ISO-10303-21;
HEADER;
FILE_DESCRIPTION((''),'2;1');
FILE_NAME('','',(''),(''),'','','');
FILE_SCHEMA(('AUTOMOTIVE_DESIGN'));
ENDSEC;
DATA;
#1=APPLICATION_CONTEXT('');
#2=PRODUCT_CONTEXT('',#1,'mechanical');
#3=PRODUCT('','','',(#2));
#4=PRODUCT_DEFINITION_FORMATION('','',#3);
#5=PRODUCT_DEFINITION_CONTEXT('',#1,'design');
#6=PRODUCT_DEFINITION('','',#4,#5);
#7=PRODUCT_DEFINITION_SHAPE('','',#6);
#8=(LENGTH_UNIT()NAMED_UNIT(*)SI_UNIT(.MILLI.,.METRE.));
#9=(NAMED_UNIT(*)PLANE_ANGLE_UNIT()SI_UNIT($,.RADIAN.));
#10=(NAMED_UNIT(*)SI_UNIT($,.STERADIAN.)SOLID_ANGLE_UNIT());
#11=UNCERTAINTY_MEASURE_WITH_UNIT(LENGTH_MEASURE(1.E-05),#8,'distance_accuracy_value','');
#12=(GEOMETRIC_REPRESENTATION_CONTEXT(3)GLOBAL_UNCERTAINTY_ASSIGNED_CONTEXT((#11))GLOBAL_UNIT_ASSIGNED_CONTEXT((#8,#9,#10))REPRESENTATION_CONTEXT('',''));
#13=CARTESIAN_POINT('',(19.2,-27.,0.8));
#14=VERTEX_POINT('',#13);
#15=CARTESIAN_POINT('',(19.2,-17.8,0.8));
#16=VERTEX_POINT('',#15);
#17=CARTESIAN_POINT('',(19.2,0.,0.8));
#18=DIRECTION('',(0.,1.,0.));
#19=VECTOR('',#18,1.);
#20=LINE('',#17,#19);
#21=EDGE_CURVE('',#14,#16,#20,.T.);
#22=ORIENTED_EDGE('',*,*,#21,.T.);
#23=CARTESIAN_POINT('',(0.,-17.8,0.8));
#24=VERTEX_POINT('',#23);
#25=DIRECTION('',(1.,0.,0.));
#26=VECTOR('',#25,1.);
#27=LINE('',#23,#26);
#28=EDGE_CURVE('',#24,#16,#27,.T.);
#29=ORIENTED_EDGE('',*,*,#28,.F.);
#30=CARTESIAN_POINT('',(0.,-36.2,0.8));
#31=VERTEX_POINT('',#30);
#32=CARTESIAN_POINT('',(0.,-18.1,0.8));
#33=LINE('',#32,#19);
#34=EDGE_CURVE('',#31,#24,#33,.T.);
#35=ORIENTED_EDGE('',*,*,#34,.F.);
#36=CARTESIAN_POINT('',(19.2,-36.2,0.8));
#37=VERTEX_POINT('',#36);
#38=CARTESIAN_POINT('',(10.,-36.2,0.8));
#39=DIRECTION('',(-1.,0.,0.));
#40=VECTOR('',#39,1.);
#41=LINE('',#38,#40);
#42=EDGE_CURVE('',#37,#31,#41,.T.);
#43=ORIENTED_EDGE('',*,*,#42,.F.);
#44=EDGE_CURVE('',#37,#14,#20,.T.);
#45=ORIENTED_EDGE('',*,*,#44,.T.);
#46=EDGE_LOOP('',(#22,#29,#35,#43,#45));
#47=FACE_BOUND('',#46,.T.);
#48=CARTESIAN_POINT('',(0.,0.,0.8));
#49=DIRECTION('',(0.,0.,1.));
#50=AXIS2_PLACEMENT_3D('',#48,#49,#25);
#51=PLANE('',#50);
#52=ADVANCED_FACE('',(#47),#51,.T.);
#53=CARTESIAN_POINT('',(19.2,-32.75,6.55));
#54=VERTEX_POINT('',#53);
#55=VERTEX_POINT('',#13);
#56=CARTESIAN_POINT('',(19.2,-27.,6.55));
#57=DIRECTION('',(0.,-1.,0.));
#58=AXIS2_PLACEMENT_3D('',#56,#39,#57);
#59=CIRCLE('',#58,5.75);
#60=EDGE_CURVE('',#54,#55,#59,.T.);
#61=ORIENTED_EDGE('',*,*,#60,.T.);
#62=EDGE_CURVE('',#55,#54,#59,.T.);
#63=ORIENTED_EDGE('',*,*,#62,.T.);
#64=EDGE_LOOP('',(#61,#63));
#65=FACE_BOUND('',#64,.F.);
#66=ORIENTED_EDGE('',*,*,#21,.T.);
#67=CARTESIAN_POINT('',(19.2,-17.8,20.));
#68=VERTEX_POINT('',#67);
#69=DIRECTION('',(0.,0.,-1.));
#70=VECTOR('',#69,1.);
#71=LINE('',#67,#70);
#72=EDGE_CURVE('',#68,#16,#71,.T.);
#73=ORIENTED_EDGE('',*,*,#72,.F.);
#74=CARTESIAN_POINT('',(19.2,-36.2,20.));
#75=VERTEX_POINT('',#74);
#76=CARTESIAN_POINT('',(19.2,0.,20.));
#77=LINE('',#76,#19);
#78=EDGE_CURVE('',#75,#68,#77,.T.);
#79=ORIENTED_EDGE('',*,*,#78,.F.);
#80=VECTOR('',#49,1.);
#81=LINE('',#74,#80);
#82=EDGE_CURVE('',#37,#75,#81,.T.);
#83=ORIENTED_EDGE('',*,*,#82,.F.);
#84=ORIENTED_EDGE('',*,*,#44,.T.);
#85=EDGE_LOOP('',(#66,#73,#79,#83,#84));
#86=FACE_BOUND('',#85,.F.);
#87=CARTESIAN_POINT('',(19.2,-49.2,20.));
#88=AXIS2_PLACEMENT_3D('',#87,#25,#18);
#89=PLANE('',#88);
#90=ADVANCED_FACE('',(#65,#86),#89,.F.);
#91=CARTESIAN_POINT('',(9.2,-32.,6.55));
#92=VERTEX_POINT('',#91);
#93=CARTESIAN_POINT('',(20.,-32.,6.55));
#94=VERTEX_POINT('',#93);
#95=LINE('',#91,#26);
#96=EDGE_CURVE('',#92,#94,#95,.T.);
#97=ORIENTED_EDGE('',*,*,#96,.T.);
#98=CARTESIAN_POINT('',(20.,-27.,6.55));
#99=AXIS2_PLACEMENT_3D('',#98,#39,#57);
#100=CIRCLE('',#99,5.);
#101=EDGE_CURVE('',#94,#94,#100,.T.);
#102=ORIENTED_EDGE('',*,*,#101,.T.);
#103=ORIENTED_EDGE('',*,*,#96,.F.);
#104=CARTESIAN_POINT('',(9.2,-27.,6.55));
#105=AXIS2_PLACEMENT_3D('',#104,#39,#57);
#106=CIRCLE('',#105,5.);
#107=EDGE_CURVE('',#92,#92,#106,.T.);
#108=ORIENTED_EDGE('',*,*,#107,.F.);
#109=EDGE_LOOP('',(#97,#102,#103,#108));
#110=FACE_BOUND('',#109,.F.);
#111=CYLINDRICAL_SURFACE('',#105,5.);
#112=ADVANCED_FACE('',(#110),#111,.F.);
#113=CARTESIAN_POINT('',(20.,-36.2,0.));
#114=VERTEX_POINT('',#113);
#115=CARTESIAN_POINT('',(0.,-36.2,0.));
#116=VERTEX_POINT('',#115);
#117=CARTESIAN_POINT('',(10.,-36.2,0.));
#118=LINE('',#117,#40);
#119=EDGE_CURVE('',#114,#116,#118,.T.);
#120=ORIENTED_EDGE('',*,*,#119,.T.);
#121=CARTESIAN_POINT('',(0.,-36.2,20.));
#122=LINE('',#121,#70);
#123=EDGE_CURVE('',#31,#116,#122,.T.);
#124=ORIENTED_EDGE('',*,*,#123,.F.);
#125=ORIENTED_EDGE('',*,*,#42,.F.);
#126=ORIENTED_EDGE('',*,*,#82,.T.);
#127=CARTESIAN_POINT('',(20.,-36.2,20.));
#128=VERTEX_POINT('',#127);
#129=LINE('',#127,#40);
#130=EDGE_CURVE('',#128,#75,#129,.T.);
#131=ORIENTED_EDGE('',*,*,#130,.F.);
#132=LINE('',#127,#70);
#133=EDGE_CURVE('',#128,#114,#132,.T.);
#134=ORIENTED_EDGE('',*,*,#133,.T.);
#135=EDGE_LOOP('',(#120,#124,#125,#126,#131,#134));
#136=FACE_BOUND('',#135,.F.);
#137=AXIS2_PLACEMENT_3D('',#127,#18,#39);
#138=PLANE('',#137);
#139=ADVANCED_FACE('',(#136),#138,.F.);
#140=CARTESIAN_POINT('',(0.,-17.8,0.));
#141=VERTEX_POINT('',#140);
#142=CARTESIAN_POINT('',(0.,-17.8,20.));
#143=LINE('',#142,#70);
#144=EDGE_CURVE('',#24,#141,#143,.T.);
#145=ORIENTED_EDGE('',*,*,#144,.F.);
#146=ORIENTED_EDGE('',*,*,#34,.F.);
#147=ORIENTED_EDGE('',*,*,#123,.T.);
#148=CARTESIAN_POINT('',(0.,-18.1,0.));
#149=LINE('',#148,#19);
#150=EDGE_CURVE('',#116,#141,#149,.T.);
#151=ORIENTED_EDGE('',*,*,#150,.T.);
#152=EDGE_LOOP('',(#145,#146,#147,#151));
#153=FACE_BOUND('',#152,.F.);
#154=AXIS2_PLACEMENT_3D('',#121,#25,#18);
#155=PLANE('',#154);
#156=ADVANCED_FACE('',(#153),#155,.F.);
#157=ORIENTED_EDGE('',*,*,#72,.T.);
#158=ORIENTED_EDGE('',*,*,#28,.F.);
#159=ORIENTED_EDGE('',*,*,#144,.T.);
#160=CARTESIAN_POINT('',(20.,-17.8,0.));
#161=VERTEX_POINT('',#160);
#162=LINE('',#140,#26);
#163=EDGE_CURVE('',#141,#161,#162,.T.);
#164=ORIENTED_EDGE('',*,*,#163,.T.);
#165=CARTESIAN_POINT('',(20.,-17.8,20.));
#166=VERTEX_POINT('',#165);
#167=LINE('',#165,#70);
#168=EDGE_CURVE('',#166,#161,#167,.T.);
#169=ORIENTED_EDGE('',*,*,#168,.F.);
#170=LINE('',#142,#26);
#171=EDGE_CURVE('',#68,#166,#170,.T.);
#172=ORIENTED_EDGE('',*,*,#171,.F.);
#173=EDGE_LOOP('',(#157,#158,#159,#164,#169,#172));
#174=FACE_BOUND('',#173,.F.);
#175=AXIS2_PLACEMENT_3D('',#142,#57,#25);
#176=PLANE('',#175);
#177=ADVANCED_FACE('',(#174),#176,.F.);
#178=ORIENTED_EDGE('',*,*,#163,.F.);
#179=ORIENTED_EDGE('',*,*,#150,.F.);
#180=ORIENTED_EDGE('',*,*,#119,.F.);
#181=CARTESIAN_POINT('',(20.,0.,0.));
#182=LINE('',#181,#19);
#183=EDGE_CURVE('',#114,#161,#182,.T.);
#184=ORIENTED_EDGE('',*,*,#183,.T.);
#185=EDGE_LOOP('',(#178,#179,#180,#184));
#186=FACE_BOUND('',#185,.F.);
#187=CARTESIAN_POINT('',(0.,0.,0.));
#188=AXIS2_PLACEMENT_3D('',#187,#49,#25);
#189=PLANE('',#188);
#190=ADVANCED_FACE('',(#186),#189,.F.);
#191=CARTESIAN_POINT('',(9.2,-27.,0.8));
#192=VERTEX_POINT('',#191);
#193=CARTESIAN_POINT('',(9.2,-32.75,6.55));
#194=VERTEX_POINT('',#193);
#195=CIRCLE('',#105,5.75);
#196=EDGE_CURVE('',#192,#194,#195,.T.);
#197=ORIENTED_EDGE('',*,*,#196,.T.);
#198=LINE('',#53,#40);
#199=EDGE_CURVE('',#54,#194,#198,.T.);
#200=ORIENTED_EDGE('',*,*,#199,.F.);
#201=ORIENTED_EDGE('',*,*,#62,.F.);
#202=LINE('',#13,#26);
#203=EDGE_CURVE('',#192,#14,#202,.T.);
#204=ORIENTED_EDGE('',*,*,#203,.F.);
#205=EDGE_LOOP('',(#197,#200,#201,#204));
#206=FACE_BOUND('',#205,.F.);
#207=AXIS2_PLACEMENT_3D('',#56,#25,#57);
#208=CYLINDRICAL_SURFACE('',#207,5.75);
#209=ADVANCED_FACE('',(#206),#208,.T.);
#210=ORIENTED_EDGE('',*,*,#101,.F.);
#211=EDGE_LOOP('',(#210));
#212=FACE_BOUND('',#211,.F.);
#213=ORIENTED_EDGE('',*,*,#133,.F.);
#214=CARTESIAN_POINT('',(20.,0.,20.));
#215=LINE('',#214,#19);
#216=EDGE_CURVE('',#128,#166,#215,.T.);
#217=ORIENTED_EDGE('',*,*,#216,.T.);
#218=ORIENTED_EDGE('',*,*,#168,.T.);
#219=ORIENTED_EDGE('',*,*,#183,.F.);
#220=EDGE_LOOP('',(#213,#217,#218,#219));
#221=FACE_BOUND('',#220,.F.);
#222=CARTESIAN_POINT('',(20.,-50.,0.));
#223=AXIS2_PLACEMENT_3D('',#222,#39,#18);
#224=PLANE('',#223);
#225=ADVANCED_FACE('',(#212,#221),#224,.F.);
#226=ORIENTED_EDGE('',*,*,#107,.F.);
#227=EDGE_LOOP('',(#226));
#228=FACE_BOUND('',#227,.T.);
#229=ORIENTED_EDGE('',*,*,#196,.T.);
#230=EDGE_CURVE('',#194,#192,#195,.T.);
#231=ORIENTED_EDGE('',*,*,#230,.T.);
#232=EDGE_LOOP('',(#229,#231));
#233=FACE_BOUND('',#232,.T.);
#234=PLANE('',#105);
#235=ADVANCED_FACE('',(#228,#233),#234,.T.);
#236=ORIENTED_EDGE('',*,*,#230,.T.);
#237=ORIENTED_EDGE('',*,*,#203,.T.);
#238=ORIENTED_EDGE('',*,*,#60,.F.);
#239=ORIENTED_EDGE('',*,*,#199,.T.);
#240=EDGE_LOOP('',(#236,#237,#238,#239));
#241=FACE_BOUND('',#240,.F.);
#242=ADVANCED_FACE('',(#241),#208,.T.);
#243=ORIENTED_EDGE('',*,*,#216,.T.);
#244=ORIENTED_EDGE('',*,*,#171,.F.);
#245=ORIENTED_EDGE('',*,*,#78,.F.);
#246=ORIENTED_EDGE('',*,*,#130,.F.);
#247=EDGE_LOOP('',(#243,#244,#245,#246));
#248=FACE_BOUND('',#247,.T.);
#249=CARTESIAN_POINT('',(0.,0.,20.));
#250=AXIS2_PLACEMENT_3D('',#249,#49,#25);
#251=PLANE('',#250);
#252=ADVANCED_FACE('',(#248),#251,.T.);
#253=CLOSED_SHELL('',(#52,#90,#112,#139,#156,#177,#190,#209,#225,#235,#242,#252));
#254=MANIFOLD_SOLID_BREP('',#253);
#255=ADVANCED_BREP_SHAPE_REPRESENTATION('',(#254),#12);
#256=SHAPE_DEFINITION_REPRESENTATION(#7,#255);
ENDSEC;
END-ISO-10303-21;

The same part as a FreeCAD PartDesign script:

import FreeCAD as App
import Part
import Sketcher
Q = App.Units.Quantity


def edges_at(feature, points):
    """Names of the edges that pass closest to the given points."""
    edges = feature.Shape.Edges
    near = lambda p: min(range(len(edges)), key=lambda i: edges[i].distToShape(Part.Vertex(*p))[0])
    return sorted({f"Edge{near(p) + 1}" for p in points})

doc = App.newDocument("Part")
body = doc.addObject("PartDesign::Body", "Body")

# Sketch on XY plane
sketch1 = body.newObject("Sketcher::SketchObject", "Sketch")
sketch1.AttachmentSupport = (doc.getObject("XY_Plane"), [""])
sketch1.MapMode = "FlatFace"
sketch1.addGeometry([
    Part.LineSegment(App.Vector(-20, 50, 0), App.Vector(-20, -50, 0)),
    Part.LineSegment(App.Vector(-20, -50, 0), App.Vector(20, -50, 0)),
    Part.LineSegment(App.Vector(20, -50, 0), App.Vector(20, 50, 0)),
    Part.LineSegment(App.Vector(20, 50, 0), App.Vector(-20, 50, 0)),
], False)
sketch1.addConstraint([
    Sketcher.Constraint("Coincident", 0, 2, 1, 1),
    Sketcher.Constraint("Coincident", 1, 2, 2, 1),
    Sketcher.Constraint("Coincident", 2, 2, 3, 1),
    Sketcher.Constraint("Coincident", 3, 2, 0, 1),
    Sketcher.Constraint("Vertical", 0),
    Sketcher.Constraint("Horizontal", 1),
    Sketcher.Constraint("Vertical", 2),
    Sketcher.Constraint("Horizontal", 3),
    Sketcher.Constraint("Symmetric", 0, 2, 2, 2, -1, 1),
    Sketcher.Constraint("DistanceX", 1, 1, 1, 2, Q("40 mm")),
    Sketcher.Constraint("DistanceY", 0, 2, 0, 1, Q("100 mm")),
])
pad1 = body.newObject("PartDesign::Pad", "Pad")
pad1.Profile = sketch1
pad1.Length = 20

# Sketch on XY plane
sketch2 = body.newObject("Sketcher::SketchObject", "Sketch001")
sketch2.AttachmentSupport = (doc.getObject("XY_Plane"), [""])
sketch2.MapMode = "FlatFace"
sketch2.AttachmentOffset = App.Placement(App.Vector(0, 0, 20), App.Rotation())
sketch2.addGeometry([
    Part.LineSegment(App.Vector(-19, 49, 0), App.Vector(-19, -49, 0)),
    Part.LineSegment(App.Vector(-19, -49, 0), App.Vector(19, -49, 0)),
    Part.LineSegment(App.Vector(19, -49, 0), App.Vector(19, 49, 0)),
    Part.LineSegment(App.Vector(19, 49, 0), App.Vector(-19, 49, 0)),
], False)
sketch2.addConstraint([
    Sketcher.Constraint("Coincident", 0, 2, 1, 1),
    Sketcher.Constraint("Coincident", 1, 2, 2, 1),
    Sketcher.Constraint("Coincident", 2, 2, 3, 1),
    Sketcher.Constraint("Coincident", 3, 2, 0, 1),
    Sketcher.Constraint("Vertical", 0),
    Sketcher.Constraint("Horizontal", 1),
    Sketcher.Constraint("Vertical", 2),
    Sketcher.Constraint("Horizontal", 3),
    Sketcher.Constraint("Symmetric", 0, 2, 2, 2, -1, 1),
    Sketcher.Constraint("DistanceX", 1, 1, 1, 2, Q("38.4 mm")),
    Sketcher.Constraint("DistanceY", 0, 2, 0, 1, Q("98.4 mm")),
])
pocket1 = body.newObject("PartDesign::Pocket", "Pocket")
pocket1.Profile = sketch2
pocket1.Length = 19.2

# Sketch on YZ plane
sketch3 = body.newObject("Sketcher::SketchObject", "Sketch002")
sketch3.AttachmentSupport = (doc.getObject("YZ_Plane"), [""])
sketch3.MapMode = "FlatFace"
sketch3.AttachmentOffset = App.Placement(App.Vector(0, 0, 19.2), App.Rotation())
sketch3.addGeometry(Part.Circle(App.Vector(-27, 7, 0), App.Vector(0, 0, 1), 6), False)
sketch3.addConstraint([
    Sketcher.Constraint("Diameter", 0, Q("11.5 mm")),
    Sketcher.Constraint("DistanceX", 0, 3, -1, 1, Q("27 mm")),
    Sketcher.Constraint("DistanceY", -1, 1, 0, 3, Q("6.55 mm")),
])
pad2 = body.newObject("PartDesign::Pad", "Pad001")
pad2.Profile = sketch3
pad2.Length = 10
pad2.Reversed = True

# Sketch on YZ plane
sketch4 = body.newObject("Sketcher::SketchObject", "Sketch003")
sketch4.AttachmentSupport = (doc.getObject("YZ_Plane"), [""])
sketch4.MapMode = "FlatFace"
sketch4.AttachmentOffset = App.Placement(App.Vector(0, 0, 9.2), App.Rotation())
sketch4.addGeometry(Part.Circle(App.Vector(-27, 7, 0), App.Vector(0, 0, 1), 5), False)
sketch4.addConstraint([
    Sketcher.Constraint("Diameter", 0, Q("10 mm")),
    Sketcher.Constraint("DistanceX", 0, 3, -1, 1, Q("27 mm")),
    Sketcher.Constraint("DistanceY", -1, 1, 0, 3, Q("6.55 mm")),
])
pocket2 = body.newObject("PartDesign::Pocket", "Pocket001")
pocket2.Profile = sketch4
pocket2.Length = 10.8
pocket2.Reversed = True
doc.recompute()

fillet = body.newObject("PartDesign::Fillet", "Fillet")
fillet.Base = (pocket2, edges_at(pocket2, [
    (0, 50, 0),
    (0, -50, 0),
    (0, -49.2, 0.8),
    (0, 49.2, 0.8),
]))
fillet.Radius = 5

# Sketch on XY plane
sketch5 = body.newObject("Sketcher::SketchObject", "Sketch004")
sketch5.AttachmentSupport = (doc.getObject("XY_Plane"), [""])
sketch5.MapMode = "FlatFace"
sketch5.AttachmentOffset = App.Placement(App.Vector(0, 0, 20), App.Rotation())
sketch5.addGeometry([
    Part.LineSegment(App.Vector(-20, 50, 0), App.Vector(-20, -50, 0)),  # 0
    Part.LineSegment(App.Vector(-20, -50, 0), App.Vector(20, -50, 0)),  # 1
    Part.LineSegment(App.Vector(20, -50, 0), App.Vector(20, -36, 0)),  # 2
    Part.LineSegment(App.Vector(20, -36, 0), App.Vector(0, -36, 0)),  # 3
    Part.LineSegment(App.Vector(0, -36, 0), App.Vector(0, -18, 0)),  # 4
    Part.LineSegment(App.Vector(0, -18, 0), App.Vector(20, -18, 0)),  # 5
    Part.LineSegment(App.Vector(20, -18, 0), App.Vector(20, 50, 0)),  # 6
    Part.LineSegment(App.Vector(20, 50, 0), App.Vector(-20, 50, 0)),  # 7
], False)
sketch5.addConstraint([
    Sketcher.Constraint("Coincident", 0, 2, 1, 1),
    Sketcher.Constraint("Coincident", 1, 2, 2, 1),
    Sketcher.Constraint("Coincident", 2, 2, 3, 1),
    Sketcher.Constraint("Coincident", 3, 2, 4, 1),
    Sketcher.Constraint("Coincident", 4, 2, 5, 1),
    Sketcher.Constraint("Coincident", 5, 2, 6, 1),
    Sketcher.Constraint("Coincident", 6, 2, 7, 1),
    Sketcher.Constraint("Coincident", 7, 2, 0, 1),
    Sketcher.Constraint("Vertical", 0),
    Sketcher.Constraint("Horizontal", 1),
    Sketcher.Constraint("Vertical", 2),
    Sketcher.Constraint("Horizontal", 3),
    Sketcher.Constraint("Vertical", 4),
    Sketcher.Constraint("Horizontal", 5),
    Sketcher.Constraint("Vertical", 6),
    Sketcher.Constraint("Horizontal", 7),
    Sketcher.Constraint("Symmetric", 0, 2, 6, 2, -1, 1),
    Sketcher.Constraint("PointOnObject", 3, 2, -2),
    Sketcher.Constraint("Vertical", 2, 2, 5, 2),
    Sketcher.Constraint("DistanceX", 1, 1, 1, 2, Q("40 mm")),
    Sketcher.Constraint("DistanceY", 0, 2, 0, 1, Q("100 mm")),
    Sketcher.Constraint("DistanceY", 2, 1, 2, 2, Q("13.8 mm")),
    Sketcher.Constraint("DistanceY", 4, 1, 4, 2, Q("18.4 mm")),
])
pocket3 = body.newObject("PartDesign::Pocket", "Pocket002")
pocket3.Profile = sketch5
pocket3.Type = "ThroughAll"

doc.recompute()
